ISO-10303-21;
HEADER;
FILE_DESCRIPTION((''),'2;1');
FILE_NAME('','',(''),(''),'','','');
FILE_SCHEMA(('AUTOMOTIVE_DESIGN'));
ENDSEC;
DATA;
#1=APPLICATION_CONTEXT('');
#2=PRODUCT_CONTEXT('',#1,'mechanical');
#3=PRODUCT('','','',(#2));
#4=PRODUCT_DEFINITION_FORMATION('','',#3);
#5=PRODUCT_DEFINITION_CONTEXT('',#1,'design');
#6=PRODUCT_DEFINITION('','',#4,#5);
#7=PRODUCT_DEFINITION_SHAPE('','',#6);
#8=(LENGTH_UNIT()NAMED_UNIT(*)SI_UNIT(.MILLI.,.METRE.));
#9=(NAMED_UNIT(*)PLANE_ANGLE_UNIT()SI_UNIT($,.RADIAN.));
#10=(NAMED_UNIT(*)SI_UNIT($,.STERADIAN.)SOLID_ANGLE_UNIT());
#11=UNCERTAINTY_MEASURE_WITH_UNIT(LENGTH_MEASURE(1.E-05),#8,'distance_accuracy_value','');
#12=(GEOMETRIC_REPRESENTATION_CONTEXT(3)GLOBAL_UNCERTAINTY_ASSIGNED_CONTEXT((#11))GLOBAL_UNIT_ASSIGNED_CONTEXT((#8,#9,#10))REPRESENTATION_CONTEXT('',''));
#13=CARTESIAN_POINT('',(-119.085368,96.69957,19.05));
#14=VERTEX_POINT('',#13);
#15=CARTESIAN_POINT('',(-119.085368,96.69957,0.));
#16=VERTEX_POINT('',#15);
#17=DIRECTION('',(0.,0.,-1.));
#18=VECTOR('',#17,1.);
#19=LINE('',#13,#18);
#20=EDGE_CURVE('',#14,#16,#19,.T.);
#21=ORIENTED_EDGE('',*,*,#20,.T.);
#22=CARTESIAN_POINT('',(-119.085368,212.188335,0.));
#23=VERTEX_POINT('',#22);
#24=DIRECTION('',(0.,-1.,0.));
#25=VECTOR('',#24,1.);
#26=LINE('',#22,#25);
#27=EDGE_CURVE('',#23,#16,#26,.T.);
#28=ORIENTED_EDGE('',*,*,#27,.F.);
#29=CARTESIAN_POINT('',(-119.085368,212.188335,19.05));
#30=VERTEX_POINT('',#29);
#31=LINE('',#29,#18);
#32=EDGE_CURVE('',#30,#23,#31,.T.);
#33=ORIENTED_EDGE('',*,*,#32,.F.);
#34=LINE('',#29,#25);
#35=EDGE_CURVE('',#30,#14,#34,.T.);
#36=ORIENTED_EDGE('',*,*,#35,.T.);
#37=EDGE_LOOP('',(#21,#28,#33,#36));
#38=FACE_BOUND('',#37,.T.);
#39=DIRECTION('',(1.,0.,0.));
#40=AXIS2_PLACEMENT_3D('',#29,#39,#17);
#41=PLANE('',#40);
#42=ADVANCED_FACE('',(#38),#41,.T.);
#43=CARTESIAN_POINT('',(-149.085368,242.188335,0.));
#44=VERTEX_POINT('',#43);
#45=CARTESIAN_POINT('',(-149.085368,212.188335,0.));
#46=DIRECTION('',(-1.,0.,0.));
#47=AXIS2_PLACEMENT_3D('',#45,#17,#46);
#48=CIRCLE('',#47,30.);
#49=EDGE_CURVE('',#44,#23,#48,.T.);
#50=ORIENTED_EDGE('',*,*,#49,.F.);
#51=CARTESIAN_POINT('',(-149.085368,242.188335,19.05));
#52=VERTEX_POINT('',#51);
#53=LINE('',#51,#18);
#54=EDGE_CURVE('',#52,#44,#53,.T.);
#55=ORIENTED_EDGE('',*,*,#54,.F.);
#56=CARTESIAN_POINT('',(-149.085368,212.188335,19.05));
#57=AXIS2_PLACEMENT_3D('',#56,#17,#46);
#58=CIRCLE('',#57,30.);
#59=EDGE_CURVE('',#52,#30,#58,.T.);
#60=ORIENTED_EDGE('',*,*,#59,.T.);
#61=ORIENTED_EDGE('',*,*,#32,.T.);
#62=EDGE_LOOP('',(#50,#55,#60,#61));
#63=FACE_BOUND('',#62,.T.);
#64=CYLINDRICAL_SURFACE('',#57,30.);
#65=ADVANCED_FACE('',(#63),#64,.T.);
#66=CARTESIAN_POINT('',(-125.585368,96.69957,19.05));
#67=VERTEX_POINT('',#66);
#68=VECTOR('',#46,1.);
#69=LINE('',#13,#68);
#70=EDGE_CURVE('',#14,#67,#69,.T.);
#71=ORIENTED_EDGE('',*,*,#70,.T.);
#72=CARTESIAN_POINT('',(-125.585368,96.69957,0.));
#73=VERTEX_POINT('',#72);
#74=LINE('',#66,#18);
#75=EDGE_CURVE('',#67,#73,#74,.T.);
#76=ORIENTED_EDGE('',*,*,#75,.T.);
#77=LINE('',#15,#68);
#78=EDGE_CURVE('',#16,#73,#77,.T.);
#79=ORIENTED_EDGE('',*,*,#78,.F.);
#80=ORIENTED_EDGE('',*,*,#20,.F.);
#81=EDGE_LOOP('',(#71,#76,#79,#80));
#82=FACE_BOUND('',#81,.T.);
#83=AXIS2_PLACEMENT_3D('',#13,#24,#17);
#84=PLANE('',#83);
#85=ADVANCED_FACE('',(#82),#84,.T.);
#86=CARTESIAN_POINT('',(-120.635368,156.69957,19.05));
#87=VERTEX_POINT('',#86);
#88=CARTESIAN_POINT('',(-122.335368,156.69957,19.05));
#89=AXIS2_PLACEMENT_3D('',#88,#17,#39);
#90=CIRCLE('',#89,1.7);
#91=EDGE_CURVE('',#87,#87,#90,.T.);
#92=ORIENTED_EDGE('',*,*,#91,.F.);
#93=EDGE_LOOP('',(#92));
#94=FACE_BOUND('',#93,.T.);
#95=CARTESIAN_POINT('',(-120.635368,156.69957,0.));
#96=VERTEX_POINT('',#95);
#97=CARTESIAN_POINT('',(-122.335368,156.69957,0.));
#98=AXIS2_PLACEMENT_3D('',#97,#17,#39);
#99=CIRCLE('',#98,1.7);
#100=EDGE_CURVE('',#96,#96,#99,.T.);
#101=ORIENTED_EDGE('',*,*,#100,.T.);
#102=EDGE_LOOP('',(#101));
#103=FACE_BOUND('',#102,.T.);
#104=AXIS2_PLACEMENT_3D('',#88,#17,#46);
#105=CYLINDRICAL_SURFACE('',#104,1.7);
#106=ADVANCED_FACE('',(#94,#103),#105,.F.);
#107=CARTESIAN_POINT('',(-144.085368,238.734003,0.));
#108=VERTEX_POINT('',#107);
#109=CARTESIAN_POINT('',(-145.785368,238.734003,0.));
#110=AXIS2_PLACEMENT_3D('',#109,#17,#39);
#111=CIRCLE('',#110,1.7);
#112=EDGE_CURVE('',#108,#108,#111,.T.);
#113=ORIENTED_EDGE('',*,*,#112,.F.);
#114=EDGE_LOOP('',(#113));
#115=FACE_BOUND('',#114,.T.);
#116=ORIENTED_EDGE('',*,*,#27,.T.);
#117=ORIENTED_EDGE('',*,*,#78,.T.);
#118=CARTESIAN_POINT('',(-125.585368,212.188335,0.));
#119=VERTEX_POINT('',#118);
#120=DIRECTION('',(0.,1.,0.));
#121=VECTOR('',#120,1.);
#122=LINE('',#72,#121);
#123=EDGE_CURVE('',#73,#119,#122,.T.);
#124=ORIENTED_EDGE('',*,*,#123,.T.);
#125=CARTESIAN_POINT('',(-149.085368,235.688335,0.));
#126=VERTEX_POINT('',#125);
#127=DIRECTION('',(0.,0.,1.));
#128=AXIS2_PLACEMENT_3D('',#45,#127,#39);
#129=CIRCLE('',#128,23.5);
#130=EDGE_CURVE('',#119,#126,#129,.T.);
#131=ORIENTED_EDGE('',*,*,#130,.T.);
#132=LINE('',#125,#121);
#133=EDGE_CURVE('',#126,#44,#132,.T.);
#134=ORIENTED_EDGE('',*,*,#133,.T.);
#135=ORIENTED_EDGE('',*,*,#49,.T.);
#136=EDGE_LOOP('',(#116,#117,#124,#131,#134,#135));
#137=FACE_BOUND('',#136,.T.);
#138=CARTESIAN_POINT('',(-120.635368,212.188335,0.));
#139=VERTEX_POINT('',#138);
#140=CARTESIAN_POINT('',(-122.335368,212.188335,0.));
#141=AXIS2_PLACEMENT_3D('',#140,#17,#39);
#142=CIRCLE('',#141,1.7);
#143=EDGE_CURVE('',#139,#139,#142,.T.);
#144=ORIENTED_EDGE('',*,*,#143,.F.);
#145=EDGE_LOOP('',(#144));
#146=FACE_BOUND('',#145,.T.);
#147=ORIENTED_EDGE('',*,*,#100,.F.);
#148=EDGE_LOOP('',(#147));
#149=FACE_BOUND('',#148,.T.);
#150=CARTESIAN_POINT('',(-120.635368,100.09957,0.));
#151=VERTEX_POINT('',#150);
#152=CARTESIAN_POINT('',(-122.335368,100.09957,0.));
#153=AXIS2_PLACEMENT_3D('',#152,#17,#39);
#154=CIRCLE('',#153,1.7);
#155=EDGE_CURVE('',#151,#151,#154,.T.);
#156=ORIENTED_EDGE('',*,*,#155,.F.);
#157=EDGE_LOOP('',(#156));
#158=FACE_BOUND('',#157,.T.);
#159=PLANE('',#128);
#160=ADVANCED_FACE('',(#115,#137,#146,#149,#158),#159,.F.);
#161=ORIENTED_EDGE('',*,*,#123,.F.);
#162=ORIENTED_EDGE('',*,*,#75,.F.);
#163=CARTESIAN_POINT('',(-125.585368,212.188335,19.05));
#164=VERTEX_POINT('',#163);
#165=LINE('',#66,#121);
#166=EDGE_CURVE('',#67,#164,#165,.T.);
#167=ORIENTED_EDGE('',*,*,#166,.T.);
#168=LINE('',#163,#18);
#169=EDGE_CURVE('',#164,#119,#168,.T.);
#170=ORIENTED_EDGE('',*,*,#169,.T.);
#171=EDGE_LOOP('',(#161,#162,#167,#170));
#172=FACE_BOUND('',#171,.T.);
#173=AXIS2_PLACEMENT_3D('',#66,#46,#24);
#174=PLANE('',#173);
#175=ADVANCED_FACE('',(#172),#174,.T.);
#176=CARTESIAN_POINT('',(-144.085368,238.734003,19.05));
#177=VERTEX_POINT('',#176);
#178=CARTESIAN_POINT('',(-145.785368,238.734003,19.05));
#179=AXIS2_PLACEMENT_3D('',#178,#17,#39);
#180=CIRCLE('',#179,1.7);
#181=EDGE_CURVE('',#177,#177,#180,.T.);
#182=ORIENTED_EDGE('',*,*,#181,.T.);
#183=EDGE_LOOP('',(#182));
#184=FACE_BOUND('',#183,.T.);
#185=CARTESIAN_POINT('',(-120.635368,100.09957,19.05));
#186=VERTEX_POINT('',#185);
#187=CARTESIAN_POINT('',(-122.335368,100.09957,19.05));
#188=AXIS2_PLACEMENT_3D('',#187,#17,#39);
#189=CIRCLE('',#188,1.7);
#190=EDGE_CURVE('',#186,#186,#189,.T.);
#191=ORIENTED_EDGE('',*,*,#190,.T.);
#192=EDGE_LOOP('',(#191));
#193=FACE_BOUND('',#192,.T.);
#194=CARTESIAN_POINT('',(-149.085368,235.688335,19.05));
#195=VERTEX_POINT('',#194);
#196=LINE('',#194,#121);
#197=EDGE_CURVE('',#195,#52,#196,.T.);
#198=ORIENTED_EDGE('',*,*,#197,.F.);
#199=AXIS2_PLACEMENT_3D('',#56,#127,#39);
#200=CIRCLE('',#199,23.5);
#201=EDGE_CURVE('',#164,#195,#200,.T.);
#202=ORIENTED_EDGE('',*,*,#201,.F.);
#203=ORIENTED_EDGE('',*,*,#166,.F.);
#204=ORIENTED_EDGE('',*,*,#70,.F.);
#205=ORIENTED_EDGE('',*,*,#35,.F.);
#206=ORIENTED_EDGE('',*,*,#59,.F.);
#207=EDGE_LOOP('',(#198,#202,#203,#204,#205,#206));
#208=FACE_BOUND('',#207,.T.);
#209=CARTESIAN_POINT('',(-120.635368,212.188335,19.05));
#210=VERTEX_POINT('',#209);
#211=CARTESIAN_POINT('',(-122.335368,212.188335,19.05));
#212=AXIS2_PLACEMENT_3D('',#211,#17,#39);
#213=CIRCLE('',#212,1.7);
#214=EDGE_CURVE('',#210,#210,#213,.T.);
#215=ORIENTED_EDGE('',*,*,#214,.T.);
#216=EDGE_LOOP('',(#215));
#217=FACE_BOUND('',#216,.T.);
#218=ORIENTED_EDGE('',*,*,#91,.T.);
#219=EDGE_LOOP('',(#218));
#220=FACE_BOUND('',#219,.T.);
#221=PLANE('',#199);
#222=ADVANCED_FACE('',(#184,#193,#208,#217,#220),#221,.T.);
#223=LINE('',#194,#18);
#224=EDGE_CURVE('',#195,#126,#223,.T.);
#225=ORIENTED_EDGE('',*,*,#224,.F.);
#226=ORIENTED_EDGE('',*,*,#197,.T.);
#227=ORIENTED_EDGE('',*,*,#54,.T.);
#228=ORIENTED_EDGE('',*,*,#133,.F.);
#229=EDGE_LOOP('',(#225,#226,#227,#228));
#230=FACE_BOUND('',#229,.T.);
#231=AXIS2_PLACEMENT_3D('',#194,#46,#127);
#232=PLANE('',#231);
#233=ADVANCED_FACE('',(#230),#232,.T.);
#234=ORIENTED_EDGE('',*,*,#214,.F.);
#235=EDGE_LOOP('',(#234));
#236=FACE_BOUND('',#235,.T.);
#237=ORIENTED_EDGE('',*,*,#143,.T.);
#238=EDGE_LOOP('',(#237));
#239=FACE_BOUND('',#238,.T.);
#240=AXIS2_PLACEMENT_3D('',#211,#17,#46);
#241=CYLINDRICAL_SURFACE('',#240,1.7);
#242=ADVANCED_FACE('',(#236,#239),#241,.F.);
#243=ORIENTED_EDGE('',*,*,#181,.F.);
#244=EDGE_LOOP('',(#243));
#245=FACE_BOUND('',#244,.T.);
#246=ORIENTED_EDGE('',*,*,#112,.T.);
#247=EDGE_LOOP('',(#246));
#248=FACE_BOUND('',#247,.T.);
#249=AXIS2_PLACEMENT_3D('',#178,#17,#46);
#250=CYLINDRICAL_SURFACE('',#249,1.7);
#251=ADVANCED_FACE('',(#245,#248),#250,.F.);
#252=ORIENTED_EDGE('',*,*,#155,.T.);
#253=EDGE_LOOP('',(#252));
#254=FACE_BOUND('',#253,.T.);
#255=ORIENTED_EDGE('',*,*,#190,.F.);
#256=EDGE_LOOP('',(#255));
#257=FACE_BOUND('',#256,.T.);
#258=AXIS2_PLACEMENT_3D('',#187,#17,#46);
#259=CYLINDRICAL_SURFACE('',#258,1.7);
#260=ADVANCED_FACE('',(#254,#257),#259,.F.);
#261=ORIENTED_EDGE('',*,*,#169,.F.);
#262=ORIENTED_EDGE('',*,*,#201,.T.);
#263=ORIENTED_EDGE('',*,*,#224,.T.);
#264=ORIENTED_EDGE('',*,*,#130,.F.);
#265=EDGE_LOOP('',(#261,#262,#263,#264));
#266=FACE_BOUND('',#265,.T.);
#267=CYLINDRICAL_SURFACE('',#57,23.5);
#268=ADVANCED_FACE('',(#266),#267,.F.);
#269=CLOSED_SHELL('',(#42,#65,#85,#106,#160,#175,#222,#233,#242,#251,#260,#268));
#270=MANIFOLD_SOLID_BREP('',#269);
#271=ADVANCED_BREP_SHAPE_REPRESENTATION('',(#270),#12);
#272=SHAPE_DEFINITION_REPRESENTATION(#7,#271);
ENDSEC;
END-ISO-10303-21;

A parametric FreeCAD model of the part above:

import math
import FreeCAD as App
import Part
import Sketcher
Q = App.Units.Quantity

doc = App.newDocument("Part")
params = doc.addObject("Spreadsheet::Sheet", "Params")
for row, (alias, value) in enumerate([
    ("sketch1_radius", "30 mm"),
    ("sketch1_diameter", "3.4 mm"),
    ("sketch1_radius2", "23.5 mm"),
    ("pad1_length", "19.05 mm"),
], start=1):
    params.set(f"A{row}", alias)
    params.set(f"B{row}", "=" + value)
    params.setAlias(f"B{row}", alias)

body = doc.addObject("PartDesign::Body", "Body")

# Sketch on XY plane
sketch1 = body.newObject("Sketcher::SketchObject", "Sketch")
sketch1.AttachmentSupport = (doc.getObject("XY_Plane"), [""])
sketch1.MapMode = "FlatFace"
sketch1.addGeometry([
    Part.LineSegment(App.Vector(-149.1, 235.7, 0), App.Vector(-149.1, 242.2, 0)),  # 0
    Part.ArcOfCircle(Part.Circle(App.Vector(-149.1, 212.2, 0), App.Vector(0, 0, 1), 30), math.radians(0), math.radians(90)),  # 1
    Part.LineSegment(App.Vector(-119.1, 212.2, 0), App.Vector(-119.1, 96.7, 0)),  # 2
    Part.LineSegment(App.Vector(-119.1, 96.7, 0), App.Vector(-125.6, 96.7, 0)),  # 3
    Part.LineSegment(App.Vector(-125.6, 96.7, 0), App.Vector(-125.6, 212.2, 0)),  # 4
    Part.ArcOfCircle(Part.Circle(App.Vector(-149.1, 212.2, 0), App.Vector(0, 0, 1), 23.5), math.radians(0), math.radians(90)),  # 5
    Part.Circle(App.Vector(-122.3, 100.1, 0), App.Vector(0, 0, 1), 1.7),  # 6
    Part.Circle(App.Vector(-122.3, 156.7, 0), App.Vector(0, 0, 1), 1.7),  # 7
    Part.Circle(App.Vector(-122.3, 212.2, 0), App.Vector(0, 0, 1), 1.7),  # 8
    Part.Circle(App.Vector(-145.8, 238.7, 0), App.Vector(0, 0, 1), 1.7),  # 9
], False)
sketch1.addConstraint([
    Sketcher.Constraint("Coincident", 0, 2, 1, 2),
    Sketcher.Constraint("Tangent", 1, 1, 2, 1),
    Sketcher.Constraint("Coincident", 2, 2, 3, 1),
    Sketcher.Constraint("Coincident", 3, 2, 4, 1),
    Sketcher.Constraint("Tangent", 4, 2, 5, 1),
    Sketcher.Constraint("Coincident", 5, 2, 0, 1),
    Sketcher.Constraint("Vertical", 0),
    Sketcher.Constraint("Vertical", 2),
    Sketcher.Constraint("Horizontal", 3),
    Sketcher.Constraint("Vertical", 4),
    Sketcher.Constraint("Coincident", 5, 3, 1, 3),
    Sketcher.Constraint("Equal", 6, 7),
    Sketcher.Constraint("Equal", 7, 8),
    Sketcher.Constraint("Equal", 8, 9),
    Sketcher.Constraint("Horizontal", 5, 3, 8, 3),
    Sketcher.Constraint("Vertical", 6, 3, 7, 3),
    Sketcher.Constraint("Vertical", 7, 3, 8, 3),
    Sketcher.Constraint("Vertical", 5, 3, 0, 2),
    Sketcher.Constraint("Radius", 1, Q("30 mm")),
    Sketcher.Constraint("Diameter", 6, Q("3.4 mm")),
    Sketcher.Constraint("Radius", 5, Q("23.5 mm")),
    Sketcher.Constraint("DistanceY", 2, 2, 7, 3, Q("60 mm")),
    Sketcher.Constraint("DistanceY", 6, 3, 7, 3, Q("56.6 mm")),
    Sketcher.Constraint("DistanceX", 1, 3, 9, 3, Q("3.3 mm")),
    Sketcher.Constraint("DistanceX", 5, 3, 6, 3, Q("26.75 mm")),
    Sketcher.Constraint("DistanceY", 2, 2, 2, 1, Q("115.488764 mm")),
    Sketcher.Constraint("DistanceX", 1, 3, -1, 1, Q("149.085368 mm")),
    Sketcher.Constraint("DistanceY", -1, 1, 6, 3, Q("100.09957 mm")),
    Sketcher.Constraint("DistanceY", 1, 3, 9, 3, Q("26.545668 mm")),
])
sketch1.setExpression("Constraints[18]", "Params.sketch1_radius")
sketch1.setExpression("Constraints[19]", "Params.sketch1_diameter")
sketch1.setExpression("Constraints[20]", "Params.sketch1_radius2")
pad1 = body.newObject("PartDesign::Pad", "Pad")
pad1.Profile = sketch1
pad1.setExpression("Length", "Params.pad1_length")

doc.recompute()
